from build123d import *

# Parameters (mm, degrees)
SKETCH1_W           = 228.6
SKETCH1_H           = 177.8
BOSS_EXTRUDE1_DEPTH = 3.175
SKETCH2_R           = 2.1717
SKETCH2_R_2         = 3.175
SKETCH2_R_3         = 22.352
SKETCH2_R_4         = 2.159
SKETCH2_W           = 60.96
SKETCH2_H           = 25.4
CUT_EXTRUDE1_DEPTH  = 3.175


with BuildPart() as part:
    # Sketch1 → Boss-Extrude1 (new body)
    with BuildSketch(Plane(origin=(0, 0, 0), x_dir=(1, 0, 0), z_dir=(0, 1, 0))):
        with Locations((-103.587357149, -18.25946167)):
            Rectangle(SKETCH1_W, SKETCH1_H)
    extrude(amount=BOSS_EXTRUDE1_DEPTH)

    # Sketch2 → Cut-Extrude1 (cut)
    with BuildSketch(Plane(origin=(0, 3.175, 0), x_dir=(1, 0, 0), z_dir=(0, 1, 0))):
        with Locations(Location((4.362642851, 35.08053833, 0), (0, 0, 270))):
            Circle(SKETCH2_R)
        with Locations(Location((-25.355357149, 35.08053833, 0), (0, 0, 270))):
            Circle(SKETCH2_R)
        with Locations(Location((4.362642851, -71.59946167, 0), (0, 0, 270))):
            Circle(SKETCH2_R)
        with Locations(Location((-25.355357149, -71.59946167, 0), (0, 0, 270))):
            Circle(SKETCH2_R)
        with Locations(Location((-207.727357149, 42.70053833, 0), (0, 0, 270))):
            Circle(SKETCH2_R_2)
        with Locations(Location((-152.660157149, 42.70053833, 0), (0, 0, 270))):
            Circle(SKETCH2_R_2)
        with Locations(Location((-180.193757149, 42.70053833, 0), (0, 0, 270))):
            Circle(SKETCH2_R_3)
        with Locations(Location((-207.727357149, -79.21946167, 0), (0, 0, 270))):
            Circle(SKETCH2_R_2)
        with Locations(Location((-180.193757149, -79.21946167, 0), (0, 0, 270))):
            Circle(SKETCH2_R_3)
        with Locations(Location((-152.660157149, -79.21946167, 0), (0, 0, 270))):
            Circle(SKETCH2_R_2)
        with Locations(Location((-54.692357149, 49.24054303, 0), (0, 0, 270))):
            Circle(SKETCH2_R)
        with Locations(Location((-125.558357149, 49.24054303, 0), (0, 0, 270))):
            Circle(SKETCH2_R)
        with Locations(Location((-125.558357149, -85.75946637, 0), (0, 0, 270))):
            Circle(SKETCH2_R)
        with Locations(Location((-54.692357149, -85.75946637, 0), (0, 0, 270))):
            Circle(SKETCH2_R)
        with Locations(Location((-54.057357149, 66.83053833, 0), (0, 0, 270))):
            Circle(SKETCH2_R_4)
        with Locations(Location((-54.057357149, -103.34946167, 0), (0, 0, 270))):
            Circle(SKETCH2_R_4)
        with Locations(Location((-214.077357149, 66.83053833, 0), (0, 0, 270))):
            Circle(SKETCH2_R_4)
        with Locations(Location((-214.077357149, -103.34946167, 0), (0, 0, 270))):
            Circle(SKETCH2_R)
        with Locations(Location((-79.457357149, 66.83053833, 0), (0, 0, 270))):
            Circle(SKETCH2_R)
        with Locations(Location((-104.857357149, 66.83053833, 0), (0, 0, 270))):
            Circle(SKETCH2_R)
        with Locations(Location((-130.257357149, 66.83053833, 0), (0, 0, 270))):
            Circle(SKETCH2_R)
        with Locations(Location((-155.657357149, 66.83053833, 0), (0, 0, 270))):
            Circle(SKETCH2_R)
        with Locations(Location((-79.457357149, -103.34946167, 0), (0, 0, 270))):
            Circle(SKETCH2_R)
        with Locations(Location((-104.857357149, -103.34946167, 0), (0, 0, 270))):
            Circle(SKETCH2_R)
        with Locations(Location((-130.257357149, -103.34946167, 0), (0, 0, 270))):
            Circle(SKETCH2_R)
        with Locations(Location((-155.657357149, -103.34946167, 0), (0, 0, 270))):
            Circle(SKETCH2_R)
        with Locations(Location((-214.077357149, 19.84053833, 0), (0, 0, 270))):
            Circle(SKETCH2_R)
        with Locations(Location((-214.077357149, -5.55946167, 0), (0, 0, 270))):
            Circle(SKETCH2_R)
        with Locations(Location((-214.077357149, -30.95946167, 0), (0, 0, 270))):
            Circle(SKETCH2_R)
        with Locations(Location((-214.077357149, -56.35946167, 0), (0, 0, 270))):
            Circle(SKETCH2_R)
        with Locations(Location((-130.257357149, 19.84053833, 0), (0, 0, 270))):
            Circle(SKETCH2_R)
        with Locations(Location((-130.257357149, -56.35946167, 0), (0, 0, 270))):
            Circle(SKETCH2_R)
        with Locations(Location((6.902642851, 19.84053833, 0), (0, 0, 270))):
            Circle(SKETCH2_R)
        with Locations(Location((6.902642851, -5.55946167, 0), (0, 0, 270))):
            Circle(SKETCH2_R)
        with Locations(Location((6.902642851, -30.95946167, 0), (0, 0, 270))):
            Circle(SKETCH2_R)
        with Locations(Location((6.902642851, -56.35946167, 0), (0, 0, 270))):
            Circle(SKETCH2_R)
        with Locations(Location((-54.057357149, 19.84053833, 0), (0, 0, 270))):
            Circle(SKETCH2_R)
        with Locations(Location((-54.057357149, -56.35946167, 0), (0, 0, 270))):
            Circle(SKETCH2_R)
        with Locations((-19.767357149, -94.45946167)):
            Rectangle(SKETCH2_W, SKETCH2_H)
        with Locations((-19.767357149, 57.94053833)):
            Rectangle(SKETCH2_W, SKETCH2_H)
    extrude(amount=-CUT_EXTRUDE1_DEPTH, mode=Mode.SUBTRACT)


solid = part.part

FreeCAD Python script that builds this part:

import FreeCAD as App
import Part
import Sketcher

V = App.Vector
Q = App.Units.Quantity


def add_polygon(sketch, points):
    """Adds a closed chain of lines whose ends are joined by coincident constraints."""
    first, n = sketch.GeometryCount, len(points)
    for a, b in zip(points, points[1:] + points[:1]):
        sketch.addGeometry(Part.LineSegment(App.Vector(*a, 0), App.Vector(*b, 0)), False)
    for i in range(n):
        sketch.addConstraint(Sketcher.Constraint("Coincident", first + i, 2, first + (i + 1) % n, 1))

doc = App.newDocument("Part")
body = doc.addObject("PartDesign::Body", "Body")

sketch1 = doc.addObject("Sketcher::SketchObject", "Sketch")
body.addObject(sketch1)
sketch1.AttachmentSupport = (doc.XZ_Plane, [""])
sketch1.MapMode = "FlatFace"
add_polygon(sketch1, [(-217.887357, -70.640538), (-217.887357, 107.159462), (10.712643, 107.159462), (10.712643, -70.640538)])
sketch1.addConstraint(Sketcher.Constraint("Vertical", 0))
sketch1.addConstraint(Sketcher.Constraint("Horizontal", 1))
sketch1.addConstraint(Sketcher.Constraint("Vertical", 2))
sketch1.addConstraint(Sketcher.Constraint("Horizontal", 3))
sketch1.addConstraint(Sketcher.Constraint("DistanceX", 1, 1, 1, 2, Q("9 in")))
sketch1.addConstraint(Sketcher.Constraint("DistanceY", 0, 1, 0, 2, Q("7 in")))
sketch1.addConstraint(Sketcher.Constraint("DistanceY", -1, 1, 0, 2, 107.159462))
sketch1.addConstraint(Sketcher.Constraint("DistanceX", 0, 2, -1, 1, 217.887357))
pad1 = doc.addObject("PartDesign::Pad", "Pad")
body.addObject(pad1)
pad1.Profile = sketch1
pad1.Length = Q("0.125 in")
pad1.Reversed = True

sketch2 = doc.addObject("Sketcher::SketchObject", "Sketch001")
body.addObject(sketch2)
sketch2.AttachmentSupport = (doc.XZ_Plane, [""])
sketch2.MapMode = "FlatFace"
sketch2.AttachmentOffset = App.Placement(V(0, 0, -0.125 * 25.4), App.Rotation())
sketch2.addGeometry(Part.Circle(V(4.362643, -35.080538, 0), V(0, 0, 1), 2.1717), False)
sketch2.addGeometry(Part.Circle(V(-25.355357, -35.080538, 0), V(0, 0, 1), 2.1717), False)
sketch2.addGeometry(Part.Circle(V(4.362643, 71.599462, 0), V(0, 0, 1), 2.1717), False)
sketch2.addGeometry(Part.Circle(V(-25.355357, 71.599462, 0), V(0, 0, 1), 2.1717), False)
sketch2.addGeometry(Part.Circle(V(-207.727357, -42.700538, 0), V(0, 0, 1), 3.175), False)
sketch2.addGeometry(Part.Circle(V(-152.660157, -42.700538, 0), V(0, 0, 1), 3.175), False)
sketch2.addGeometry(Part.Circle(V(-180.193757, -42.700538, 0), V(0, 0, 1), 22.352), False)
sketch2.addGeometry(Part.Circle(V(-207.727357, 79.219462, 0), V(0, 0, 1), 3.175), False)
sketch2.addGeometry(Part.Circle(V(-180.193757, 79.219462, 0), V(0, 0, 1), 22.352), False)
sketch2.addGeometry(Part.Circle(V(-152.660157, 79.219462, 0), V(0, 0, 1), 3.175), False)
sketch2.addGeometry(Part.Circle(V(-54.692357, -49.240543, 0), V(0, 0, 1), 2.1717), False)
sketch2.addGeometry(Part.Circle(V(-125.558357, -49.240543, 0), V(0, 0, 1), 2.1717), False)
sketch2.addGeometry(Part.Circle(V(-125.558357, 85.759466, 0), V(0, 0, 1), 2.1717), False)
sketch2.addGeometry(Part.Circle(V(-54.692357, 85.759466, 0), V(0, 0, 1), 2.1717), False)
sketch2.addGeometry(Part.Circle(V(-54.057357, -66.830538, 0), V(0, 0, 1), 2.159), False)
sketch2.addGeometry(Part.Circle(V(-54.057357, 103.349462, 0), V(0, 0, 1), 2.159), False)
sketch2.addGeometry(Part.Circle(V(-214.077357, -66.830538, 0), V(0, 0, 1), 2.159), False)
sketch2.addGeometry(Part.Circle(V(-214.077357, 103.349462, 0), V(0, 0, 1), 2.1717), False)
sketch2.addGeometry(Part.Circle(V(-79.457357, -66.830538, 0), V(0, 0, 1), 2.1717), False)
sketch2.addGeometry(Part.Circle(V(-104.857357, -66.830538, 0), V(0, 0, 1), 2.1717), False)
sketch2.addGeometry(Part.Circle(V(-130.257357, -66.830538, 0), V(0, 0, 1), 2.1717), False)
sketch2.addGeometry(Part.Circle(V(-155.657357, -66.830538, 0), V(0, 0, 1), 2.1717), False)
sketch2.addGeometry(Part.Circle(V(-79.457357, 103.349462, 0), V(0, 0, 1), 2.1717), False)
sketch2.addGeometry(Part.Circle(V(-104.857357, 103.349462, 0), V(0, 0, 1), 2.1717), False)
sketch2.addGeometry(Part.Circle(V(-130.257357, 103.349462, 0), V(0, 0, 1), 2.1717), False)
sketch2.addGeometry(Part.Circle(V(-155.657357, 103.349462, 0), V(0, 0, 1), 2.1717), False)
sketch2.addGeometry(Part.Circle(V(-214.077357, -19.840538, 0), V(0, 0, 1), 2.1717), False)
sketch2.addGeometry(Part.Circle(V(-214.077357, 5.559462, 0), V(0, 0, 1), 2.1717), False)
sketch2.addGeometry(Part.Circle(V(-214.077357, 30.959462, 0), V(0, 0, 1), 2.1717), False)
sketch2.addGeometry(Part.Circle(V(-214.077357, 56.359462, 0), V(0, 0, 1), 2.1717), False)
sketch2.addGeometry(Part.Circle(V(-130.257357, -19.840538, 0), V(0, 0, 1), 2.1717), False)
sketch2.addGeometry(Part.Circle(V(-130.257357, 56.359462, 0), V(0, 0, 1), 2.1717), False)
sketch2.addGeometry(Part.Circle(V(6.902643, -19.840538, 0), V(0, 0, 1), 2.1717), False)
sketch2.addGeometry(Part.Circle(V(6.902643, 5.559462, 0), V(0, 0, 1), 2.1717), False)
sketch2.addGeometry(Part.Circle(V(6.902643, 30.959462, 0), V(0, 0, 1), 2.1717), False)
sketch2.addGeometry(Part.Circle(V(6.902643, 56.359462, 0), V(0, 0, 1), 2.1717), False)
sketch2.addGeometry(Part.Circle(V(-54.057357, -19.840538, 0), V(0, 0, 1), 2.1717), False)
sketch2.addGeometry(Part.Circle(V(-54.057357, 56.359462, 0), V(0, 0, 1), 2.1717), False)
add_polygon(sketch2, [(-50.247357, 81.759462), (-50.247357, 107.159462), (10.712643, 107.159462), (10.712643, 81.759462)])
add_polygon(sketch2, [(-50.247357, -70.640538), (-50.247357, -45.240538), (10.712643, -45.240538), (10.712643, -70.640538)])
sketch2.addConstraint(Sketcher.Constraint("Vertical", 38))
sketch2.addConstraint(Sketcher.Constraint("Horizontal", 39))
sketch2.addConstraint(Sketcher.Constraint("Vertical", 40))
sketch2.addConstraint(Sketcher.Constraint("Horizontal", 41))
sketch2.addConstraint(Sketcher.Constraint("Vertical", 42))
sketch2.addConstraint(Sketcher.Constraint("Horizontal", 43))
sketch2.addConstraint(Sketcher.Constraint("Vertical", 44))
sketch2.addConstraint(Sketcher.Constraint("Horizontal", 45))
sketch2.addConstraint(Sketcher.Constraint("Equal", 0, 1))
sketch2.addConstraint(Sketcher.Constraint("Equal", 1, 2))
sketch2.addConstraint(Sketcher.Constraint("Equal", 2, 3))
sketch2.addConstraint(Sketcher.Constraint("Equal", 4, 5))
sketch2.addConstraint(Sketcher.Constraint("Equal", 5, 7))
sketch2.addConstraint(Sketcher.Constraint("Equal", 6, 8))
sketch2.addConstraint(Sketcher.Constraint("Equal", 7, 9))
sketch2.addConstraint(Sketcher.Constraint("Equal", 3, 10))
sketch2.addConstraint(Sketcher.Constraint("Equal", 10, 11))
sketch2.addConstraint(Sketcher.Constraint("Equal", 11, 12))
sketch2.addConstraint(Sketcher.Constraint("Equal", 12, 13))
sketch2.addConstraint(Sketcher.Constraint("Equal", 14, 15))
sketch2.addConstraint(Sketcher.Constraint("Equal", 15, 16))
sketch2.addConstraint(Sketcher.Constraint("Equal", 13, 17))
sketch2.addConstraint(Sketcher.Constraint("Equal", 17, 18))
sketch2.addConstraint(Sketcher.Constraint("Equal", 18, 19))
sketch2.addConstraint(Sketcher.Constraint("Equal", 19, 20))
sketch2.addConstraint(Sketcher.Constraint("Equal", 20, 21))
sketch2.addConstraint(Sketcher.Constraint("Equal", 21, 22))
sketch2.addConstraint(Sketcher.Constraint("Equal", 22, 23))
sketch2.addConstraint(Sketcher.Constraint("Equal", 23, 24))
sketch2.addConstraint(Sketcher.Constraint("Equal", 24, 25))
sketch2.addConstraint(Sketcher.Constraint("Equal", 25, 26))
sketch2.addConstraint(Sketcher.Constraint("Equal", 26, 27))
sketch2.addConstraint(Sketcher.Constraint("Equal", 27, 28))
sketch2.addConstraint(Sketcher.Constraint("Equal", 28, 29))
sketch2.addConstraint(Sketcher.Constraint("Equal", 29, 30))
sketch2.addConstraint(Sketcher.Constraint("Equal", 30, 31))
sketch2.addConstraint(Sketcher.Constraint("Equal", 31, 32))
sketch2.addConstraint(Sketcher.Constraint("Equal", 32, 33))
sketch2.addConstraint(Sketcher.Constraint("Equal", 33, 34))
sketch2.addConstraint(Sketcher.Constraint("Equal", 34, 35))
sketch2.addConstraint(Sketcher.Constraint("Equal", 35, 36))
sketch2.addConstraint(Sketcher.Constraint("Equal", 36, 37))
sketch2.addConstraint(Sketcher.Constraint("Horizontal", 0, 3, 1, 3))
sketch2.addConstraint(Sketcher.Constraint("Horizontal", 2, 3, 3, 3))
sketch2.addConstraint(Sketcher.Constraint("Horizontal", 4, 3, 5, 3))
sketch2.addConstraint(Sketcher.Constraint("Horizontal", 5, 3, 6, 3))
sketch2.addConstraint(Sketcher.Constraint("Horizontal", 7, 3, 8, 3))
sketch2.addConstraint(Sketcher.Constraint("Horizontal", 8, 3, 9, 3))
sketch2.addConstraint(Sketcher.Constraint("Horizontal", 10, 3, 11, 3))
sketch2.addConstraint(Sketcher.Constraint("Horizontal", 12, 3, 13, 3))
sketch2.addConstraint(Sketcher.Constraint("Horizontal", 14, 3, 16, 3))
sketch2.addConstraint(Sketcher.Constraint("Horizontal", 15, 3, 17, 3))
sketch2.addConstraint(Sketcher.Constraint("Horizontal", 16, 3, 18, 3))
sketch2.addConstraint(Sketcher.Constraint("Horizontal", 18, 3, 19, 3))
sketch2.addConstraint(Sketcher.Constraint("Horizontal", 19, 3, 20, 3))
sketch2.addConstraint(Sketcher.Constraint("Horizontal", 20, 3, 21, 3))
sketch2.addConstraint(Sketcher.Constraint("Horizontal", 17, 3, 22, 3))
sketch2.addConstraint(Sketcher.Constraint("Horizontal", 22, 3, 23, 3))
sketch2.addConstraint(Sketcher.Constraint("Horizontal", 23, 3, 24, 3))
sketch2.addConstraint(Sketcher.Constraint("Horizontal", 24, 3, 25, 3))
sketch2.addConstraint(Sketcher.Constraint("Horizontal", 26, 3, 30, 3))
sketch2.addConstraint(Sketcher.Constraint("Horizontal", 29, 3, 31, 3))
sketch2.addConstraint(Sketcher.Constraint("Horizontal", 30, 3, 32, 3))
sketch2.addConstraint(Sketcher.Constraint("Horizontal", 27, 3, 33, 3))
sketch2.addConstraint(Sketcher.Constraint("Horizontal", 28, 3, 34, 3))
sketch2.addConstraint(Sketcher.Constraint("Horizontal", 31, 3, 35, 3))
sketch2.addConstraint(Sketcher.Constraint("Horizontal", 32, 3, 36, 3))
sketch2.addConstraint(Sketcher.Constraint("Horizontal", 35, 3, 37, 3))
sketch2.addConstraint(Sketcher.Constraint("Vertical", 0, 3, 2, 3))
sketch2.addConstraint(Sketcher.Constraint("Vertical", 1, 3, 3, 3))
sketch2.addConstraint(Sketcher.Constraint("Vertical", 4, 3, 7, 3))
sketch2.addConstraint(Sketcher.Constraint("Vertical", 6, 3, 8, 3))
sketch2.addConstraint(Sketcher.Constraint("Vertical", 5, 3, 9, 3))
sketch2.addConstraint(Sketcher.Constraint("Vertical", 11, 3, 12, 3))
sketch2.addConstraint(Sketcher.Constraint("Vertical", 10, 3, 13, 3))
sketch2.addConstraint(Sketcher.Constraint("Vertical", 14, 3, 15, 3))
sketch2.addConstraint(Sketcher.Constraint("Vertical", 16, 3, 17, 3))
sketch2.addConstraint(Sketcher.Constraint("Vertical", 18, 3, 22, 3))
sketch2.addConstraint(Sketcher.Constraint("Vertical", 19, 3, 23, 3))
sketch2.addConstraint(Sketcher.Constraint("Vertical", 20, 3, 24, 3))
sketch2.addConstraint(Sketcher.Constraint("Vertical", 21, 3, 25, 3))
sketch2.addConstraint(Sketcher.Constraint("Vertical", 17, 3, 26, 3))
sketch2.addConstraint(Sketcher.Constraint("Vertical", 26, 3, 27, 3))
sketch2.addConstraint(Sketcher.Constraint("Vertical", 27, 3, 28, 3))
sketch2.addConstraint(Sketcher.Constraint("Vertical", 28, 3, 29, 3))
sketch2.addConstraint(Sketcher.Constraint("Vertical", 24, 3, 30, 3))
sketch2.addConstraint(Sketcher.Constraint("Vertical", 30, 3, 31, 3))
sketch2.addConstraint(Sketcher.Constraint("Vertical", 32, 3, 33, 3))
sketch2.addConstraint(Sketcher.Constraint("Vertical", 33, 3, 34, 3))
sketch2.addConstraint(Sketcher.Constraint("Vertical", 34, 3, 35, 3))
sketch2.addConstraint(Sketcher.Constraint("Vertical", 15, 3, 36, 3))
sketch2.addConstraint(Sketcher.Constraint("Vertical", 36, 3, 37, 3))
sketch2.addConstraint(Sketcher.Constraint("Vertical", 41, 2, 42, 2))
sketch2.addConstraint(Sketcher.Constraint("Vertical", 40, 2, 43, 2))
sketch2.addConstraint(Sketcher.Constraint("Equal", 40, 42))
sketch2.addConstraint(Sketcher.Constraint("Diameter", 4, Q("0.25 in")))
sketch2.addConstraint(Sketcher.Constraint("Diameter", 6, Q("1.76 in")))
sketch2.addConstraint(Sketcher.Constraint("Diameter", 14, Q("0.17 in")))
sketch2.addConstraint(Sketcher.Constraint("DistanceY", 38, 1, 38, 2, Q("1 in")))
sketch2.addConstraint(Sketcher.Constraint("Diameter", 0, Q("0.171 in")))
sketch2.addConstraint(Sketcher.Constraint("DistanceX", 39, 1, 39, 2, Q("2.4 in")))
sketch2.addConstraint(Sketcher.Constraint("DistanceX", 18, 3, 14, 3, Q("1 in")))
sketch2.addConstraint(Sketcher.Constraint("DistanceX", 19, 3, 18, 3, Q("1 in")))
sketch2.addConstraint(Sketcher.Constraint("DistanceX", 20, 3, 19, 3, Q("1 in")))
sketch2.addConstraint(Sketcher.Constraint("DistanceX", 21, 3, 20, 3, Q("1 in")))
sketch2.addConstraint(Sketcher.Constraint("DistanceY", 26, 3, 27, 3, Q("1 in")))
sketch2.addConstraint(Sketcher.Constraint("DistanceY", 27, 3, 28, 3, Q("1 in")))
sketch2.addConstraint(Sketcher.Constraint("DistanceY", 28, 3, 29, 3, Q("1 in")))
sketch2.addConstraint(Sketcher.Constraint("DistanceY", 37, 3, 38, 2, Q("2 in")))
sketch2.addConstraint(Sketcher.Constraint("DistanceY", 42, 2, 36, 3, Q("1 in")))
sketch2.addConstraint(Sketcher.Constraint("DistanceY", 0, 3, 2, 3, Q("4.2 in")))
sketch2.addConstraint(Sketcher.Constraint("DistanceY", 4, 3, 1, 3, Q("0.3 in")))
sketch2.addConstraint(Sketcher.Constraint("DistanceY", 4, 3, 7, 3, Q("4.8 in")))
sketch2.addConstraint(Sketcher.Constraint("DistanceX", 14, 3, 0, 3, Q("2.3 in")))
sketch2.addConstraint(Sketcher.Constraint("DistanceY", 4, 3, 26, 3, Q("0.9 in")))
sketch2.addConstraint(Sketcher.Constraint("DistanceX", 26, 3, 21, 3, Q("2.3 in")))
sketch2.addConstraint(Sketcher.Constraint("DistanceX", 0, 3, 32, 3, Q("0.1 in")))
sketch2.addConstraint(Sketcher.Constraint("DistanceX", 1, 3, 0, 3, Q("1.17 in")))
sketch2.addConstraint(Sketcher.Constraint("DistanceX", 4, 3, 1, 3, Q("7.18 in")))
sketch2.addConstraint(Sketcher.Constraint("DistanceX", 11, 3, 10, 3, Q("2.79 in")))
sketch2.addConstraint(Sketcher.Constraint("DistanceY", 14, 3, 1, 3, Q("1.25 in")))
sketch2.addConstraint(Sketcher.Constraint("DistanceY", 3, 3, 15, 3, Q("1.25 in")))
sketch2.addConstraint(Sketcher.Constraint("DistanceX", 15, 3, 38, 2, Q("0.15 in")))
sketch2.addConstraint(Sketcher.Constraint("DistanceX", 4, 3, 5, 3, Q("2.168 in")))
sketch2.addConstraint(Sketcher.Constraint("DistanceX", 6, 3, 5, 3, Q("1.084 in")))
sketch2.addConstraint(Sketcher.Constraint("DistanceX", 10, 3, 1, 3, Q("1.155 in")))
sketch2.addConstraint(Sketcher.Constraint("DistanceY", 0, 3, -1, 1, 35.080538))
sketch2.addConstraint(Sketcher.Constraint("DistanceX", -1, 1, 0, 3, 4.362643))
sketch2.addConstraint(Sketcher.Constraint("DistanceY", 10, 3, -1, 1, 49.240543))
sketch2.addConstraint(Sketcher.Constraint("DistanceY", -1, 1, 12, 3, 85.759466))
pocket1 = doc.addObject("PartDesign::Pocket", "Pocket")
body.addObject(pocket1)
pocket1.Profile = sketch2
pocket1.Length = Q("0.125 in")
pocket1.Reversed = True

doc.recompute()
